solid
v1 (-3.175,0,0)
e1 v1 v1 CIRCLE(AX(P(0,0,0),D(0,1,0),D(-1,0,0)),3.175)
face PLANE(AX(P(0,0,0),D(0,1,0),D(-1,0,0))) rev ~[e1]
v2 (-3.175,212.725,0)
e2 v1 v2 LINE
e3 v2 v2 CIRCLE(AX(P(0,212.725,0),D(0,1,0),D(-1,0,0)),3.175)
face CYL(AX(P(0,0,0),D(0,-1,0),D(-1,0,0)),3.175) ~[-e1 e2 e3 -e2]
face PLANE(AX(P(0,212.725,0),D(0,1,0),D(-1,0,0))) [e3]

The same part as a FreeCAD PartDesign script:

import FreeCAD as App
import Part
import Sketcher
from FreeCAD import Vector
Q = App.Units.Quantity

doc = App.newDocument("Part")
body = doc.addObject("PartDesign::Body", "Body")

sketch1 = doc.addObject("Sketcher::SketchObject", "Sketch")
body.addObject(sketch1)
sketch1.AttachmentSupport = (doc.XZ_Plane, [""])
sketch1.MapMode = "FlatFace"
sketch1.addGeometry(Part.Circle(Vector(0, 0, 0), Vector(0, 0, 1), 3.2), False)
sketch1.addConstraint(Sketcher.Constraint("Coincident", 0, 3, -1, 1))
sketch1.addConstraint(Sketcher.Constraint("Diameter", 0, Q("0.25 in")))
pad1 = doc.addObject("PartDesign::Pad", "Pad")
body.addObject(pad1)
pad1.Profile = sketch1
pad1.Length = Q("8.375 in")
pad1.Reversed = True

doc.recompute()
